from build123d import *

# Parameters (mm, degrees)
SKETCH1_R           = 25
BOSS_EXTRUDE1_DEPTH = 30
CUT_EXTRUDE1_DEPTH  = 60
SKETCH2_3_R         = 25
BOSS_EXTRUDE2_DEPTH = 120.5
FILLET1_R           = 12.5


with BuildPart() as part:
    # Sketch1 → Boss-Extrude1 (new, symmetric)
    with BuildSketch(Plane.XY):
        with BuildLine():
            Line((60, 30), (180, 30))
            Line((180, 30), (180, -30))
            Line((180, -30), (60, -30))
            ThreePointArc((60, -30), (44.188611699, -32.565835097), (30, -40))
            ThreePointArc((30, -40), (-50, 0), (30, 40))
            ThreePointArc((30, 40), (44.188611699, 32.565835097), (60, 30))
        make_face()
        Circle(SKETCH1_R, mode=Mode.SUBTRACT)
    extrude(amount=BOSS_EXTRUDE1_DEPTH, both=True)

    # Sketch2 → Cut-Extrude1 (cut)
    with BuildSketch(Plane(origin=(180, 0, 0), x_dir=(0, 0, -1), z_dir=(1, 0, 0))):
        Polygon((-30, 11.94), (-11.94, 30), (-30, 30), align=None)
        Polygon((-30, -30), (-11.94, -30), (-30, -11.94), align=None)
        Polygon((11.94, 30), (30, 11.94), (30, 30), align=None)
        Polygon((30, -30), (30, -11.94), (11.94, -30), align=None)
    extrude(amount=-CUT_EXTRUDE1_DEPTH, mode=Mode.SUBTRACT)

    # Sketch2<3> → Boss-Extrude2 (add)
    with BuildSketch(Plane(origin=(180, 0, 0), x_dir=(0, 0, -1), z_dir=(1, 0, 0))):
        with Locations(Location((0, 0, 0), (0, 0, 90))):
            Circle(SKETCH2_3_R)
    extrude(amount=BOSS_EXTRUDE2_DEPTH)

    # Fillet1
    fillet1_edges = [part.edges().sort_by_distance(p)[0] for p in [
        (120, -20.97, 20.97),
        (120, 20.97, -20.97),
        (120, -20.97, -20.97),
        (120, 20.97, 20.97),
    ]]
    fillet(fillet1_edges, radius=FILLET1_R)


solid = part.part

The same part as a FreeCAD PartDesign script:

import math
import FreeCAD as App
import Part
import Sketcher
Q = App.Units.Quantity


def edges_at(feature, points):
    """Names of the edges that pass closest to the given points."""
    edges = feature.Shape.Edges
    near = lambda p: min(range(len(edges)), key=lambda i: edges[i].distToShape(Part.Vertex(*p))[0])
    return sorted({f"Edge{near(p) + 1}" for p in points})


def add_polygon(sketch, points):
    """Adds a closed chain of lines whose ends are joined by coincident constraints."""
    first, n = sketch.GeometryCount, len(points)
    for a, b in zip(points, points[1:] + points[:1]):
        sketch.addGeometry(Part.LineSegment(App.Vector(*a, 0), App.Vector(*b, 0)), False)
    for i in range(n):
        sketch.addConstraint(Sketcher.Constraint("Coincident", first + i, 2, first + (i + 1) % n, 1))

doc = App.newDocument("Part")
params = doc.addObject("Spreadsheet::Sheet", "Params")
for row, (alias, value) in enumerate([
    ("sketch1_diameter", "50 mm"),
    ("sketch1_radius", "50 mm"),
    ("sketch1_width", "120 mm"),
    ("sketch1_height", "60 mm"),
    ("pad1_length", "60 mm"),
    ("sketch2_width", "18.06 mm"),
    ("pocket1_length", "60 mm"),
    ("sketch3_diameter", "50 mm"),
    ("pad2_length", "120.5 mm"),
    ("fillet_radius", "12.5 mm"),
], start=1):
    params.set(f"A{row}", alias)
    params.set(f"B{row}", "=" + value)
    params.setAlias(f"B{row}", alias)

body = doc.addObject("PartDesign::Body", "Body")

# Sketch on XY plane
sketch1 = doc.addObject("Sketcher::SketchObject", "Sketch")
body.addObject(sketch1)
sketch1.AttachmentSupport = (doc.XY_Plane, [""])
sketch1.MapMode = "FlatFace"
sketch1.addGeometry([
    Part.LineSegment(App.Vector(180, 30, 0), App.Vector(60, 30, 0)),  # 0
    Part.ArcOfCircle(Part.Circle(App.Vector(60, 80, 0), App.Vector(0, 0, 1), 50), math.radians(-127), math.radians(-90)),  # 1
    Part.ArcOfCircle(Part.Circle(App.Vector(0, 0, 0), App.Vector(0, 0, 1), 50), math.radians(53), math.radians(307)),  # 2
    Part.ArcOfCircle(Part.Circle(App.Vector(60, -80, 0), App.Vector(0, 0, 1), 50), math.radians(90), math.radians(127)),  # 3
    Part.LineSegment(App.Vector(60, -30, 0), App.Vector(180, -30, 0)),  # 4
    Part.LineSegment(App.Vector(180, -30, 0), App.Vector(180, 30, 0)),  # 5
    Part.Circle(App.Vector(0, 0, 0), App.Vector(0, 0, 1), 25),  # 6
], False)
sketch1.addConstraint([
    Sketcher.Constraint("Tangent", 0, 2, 1, 2),
    Sketcher.Constraint("Tangent", 1, 1, 2, 1),
    Sketcher.Constraint("Tangent", 2, 2, 3, 2),
    Sketcher.Constraint("Tangent", 3, 1, 4, 1),
    Sketcher.Constraint("Coincident", 4, 2, 5, 1),
    Sketcher.Constraint("Coincident", 5, 2, 0, 1),
    Sketcher.Constraint("Horizontal", 0),
    Sketcher.Constraint("Horizontal", 4),
    Sketcher.Constraint("Vertical", 5),
    Sketcher.Constraint("Coincident", 2, 3, -1, 1),
    Sketcher.Constraint("Coincident", 6, 3, -1, 1),
    Sketcher.Constraint("Equal", 1, 2),
    Sketcher.Constraint("Equal", 2, 3),
    Sketcher.Constraint("Vertical", 1, 3, 3, 3),
    Sketcher.Constraint("Diameter", 6, Q("50 mm")),
    Sketcher.Constraint("Radius", 1, Q("50 mm")),
    Sketcher.Constraint("DistanceX", 0, 2, 0, 1, Q("120 mm")),
    Sketcher.Constraint("DistanceY", 5, 1, 5, 2, Q("60 mm")),
])
sketch1.setExpression("Constraints[14]", "Params.sketch1_diameter")
sketch1.setExpression("Constraints[15]", "Params.sketch1_radius")
sketch1.setExpression("Constraints[16]", "Params.sketch1_width")
sketch1.setExpression("Constraints[17]", "Params.sketch1_height")
pad1 = doc.addObject("PartDesign::Pad", "Pad")
body.addObject(pad1)
pad1.Profile = sketch1
pad1.setExpression("Length", "Params.pad1_length")
pad1.Midplane = True

# Sketch on YZ plane
sketch2 = doc.addObject("Sketcher::SketchObject", "Sketch001")
body.addObject(sketch2)
sketch2.AttachmentSupport = (doc.YZ_Plane, [""])
sketch2.MapMode = "FlatFace"
sketch2.AttachmentOffset = App.Placement(App.Vector(0, 0, 180), App.Rotation())
add_polygon(sketch2, [(12, 30), (30, 12), (30, 30)])  # lines 0-2
add_polygon(sketch2, [(-30, 30), (-30, 12), (-12, 30)])  # lines 3-5
add_polygon(sketch2, [(30, -12), (12, -30), (30, -30)])  # lines 6-8
add_polygon(sketch2, [(-30, -30), (-12, -30), (-30, -12)])  # lines 9-11
sketch2.addConstraint([
    Sketcher.Constraint("Vertical", 1),
    Sketcher.Constraint("Horizontal", 2),
    Sketcher.Constraint("Vertical", 3),
    Sketcher.Constraint("Horizontal", 5),
    Sketcher.Constraint("Horizontal", 7),
    Sketcher.Constraint("Vertical", 8),
    Sketcher.Constraint("Horizontal", 9),
    Sketcher.Constraint("Vertical", 11),
    Sketcher.Constraint("Symmetric", 4, 2, 6, 2, -1, 1),
    Sketcher.Constraint("Symmetric", 3, 2, 8, 2, -1, 1),
    Sketcher.Constraint("Symmetric", 2, 2, 9, 2, -1, 1),
    Sketcher.Constraint("Symmetric", 0, 2, 10, 2, -1, 1),
    Sketcher.Constraint("Symmetric", 0, 2, 3, 2, -2),
    Sketcher.Constraint("Symmetric", 2, 2, 4, 2, -2),
    Sketcher.Constraint("Perpendicular", 0, 4),
    Sketcher.Constraint("DistanceX", -1, 1, 0, 2, Q("30 mm")),
    Sketcher.Constraint("DistanceY", -1, 1, 1, 2, Q("30 mm")),
    Sketcher.Constraint("DistanceX", 2, 2, 2, 1, Q("18.06 mm")),
])
sketch2.setExpression("Constraints[29]", "Params.sketch2_width")
pocket1 = doc.addObject("PartDesign::Pocket", "Pocket")
body.addObject(pocket1)
pocket1.Profile = sketch2
pocket1.setExpression("Length", "Params.pocket1_length")

# Sketch on YZ plane
sketch3 = doc.addObject("Sketcher::SketchObject", "Sketch002")
body.addObject(sketch3)
sketch3.AttachmentSupport = (doc.YZ_Plane, [""])
sketch3.MapMode = "FlatFace"
sketch3.AttachmentOffset = App.Placement(App.Vector(0, 0, 180), App.Rotation())
sketch3.addGeometry(Part.Circle(App.Vector(0, 0, 0), App.Vector(0, 0, 1), 25), False)
sketch3.addConstraint([
    Sketcher.Constraint("Coincident", 0, 3, -1, 1),
    Sketcher.Constraint("Diameter", 0, Q("50 mm")),
])
sketch3.setExpression("Constraints[1]", "Params.sketch3_diameter")
pad2 = doc.addObject("PartDesign::Pad", "Pad001")
body.addObject(pad2)
pad2.Profile = sketch3
pad2.setExpression("Length", "Params.pad2_length")
doc.recompute()

fillet = doc.addObject("PartDesign::Fillet", "Fillet")
body.addObject(fillet)
fillet.Base = (pad2, edges_at(pad2, [
    (120, -20.97, 20.97),
    (120, 20.97, -20.97),
    (120, -20.97, -20.97),
    (120, 20.97, 20.97),
]))
fillet.setExpression("Radius", "Params.fillet_radius")

doc.recompute()
